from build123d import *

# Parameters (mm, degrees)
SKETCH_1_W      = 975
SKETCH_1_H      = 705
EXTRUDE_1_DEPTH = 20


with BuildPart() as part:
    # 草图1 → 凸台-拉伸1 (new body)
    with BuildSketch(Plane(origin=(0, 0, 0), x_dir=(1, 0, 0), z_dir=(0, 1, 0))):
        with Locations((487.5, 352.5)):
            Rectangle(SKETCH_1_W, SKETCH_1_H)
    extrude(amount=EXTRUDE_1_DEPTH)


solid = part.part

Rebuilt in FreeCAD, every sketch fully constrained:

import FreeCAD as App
import Part
import Sketcher


def add_polygon(sketch, points):
    """Adds a closed chain of lines whose ends are joined by coincident constraints."""
    first, n = sketch.GeometryCount, len(points)
    for a, b in zip(points, points[1:] + points[:1]):
        sketch.addGeometry(Part.LineSegment(App.Vector(*a, 0), App.Vector(*b, 0)), False)
    for i in range(n):
        sketch.addConstraint(Sketcher.Constraint("Coincident", first + i, 2, first + (i + 1) % n, 1))

doc = App.newDocument("Part")
body = doc.addObject("PartDesign::Body", "Body")

# Sketch on XZ plane
sketch1 = body.newObject("Sketcher::SketchObject", "Sketch")
sketch1.AttachmentSupport = (doc.getObject("XZ_Plane"), [""])
sketch1.MapMode = "FlatFace"
add_polygon(sketch1, [(0, -705), (0, 0), (975, 0), (975, -705)])  # lines 0-3
sketch1.addConstraint(Sketcher.Constraint("Vertical", 0))
sketch1.addConstraint(Sketcher.Constraint("Horizontal", 1))
sketch1.addConstraint(Sketcher.Constraint("Vertical", 2))
sketch1.addConstraint(Sketcher.Constraint("Horizontal", 3))
sketch1.addConstraint(Sketcher.Constraint("Coincident", 0, 2, -1, 1))
sketch1.addConstraint(Sketcher.Constraint("DistanceX", 1, 1, 1, 2, 975.0))
sketch1.addConstraint(Sketcher.Constraint("DistanceY", 0, 1, 0, 2, 705.0))
pad1 = body.newObject("PartDesign::Pad", "Pad")
pad1.Profile = sketch1
pad1.Length = 20
pad1.Reversed = True

doc.recompute()
